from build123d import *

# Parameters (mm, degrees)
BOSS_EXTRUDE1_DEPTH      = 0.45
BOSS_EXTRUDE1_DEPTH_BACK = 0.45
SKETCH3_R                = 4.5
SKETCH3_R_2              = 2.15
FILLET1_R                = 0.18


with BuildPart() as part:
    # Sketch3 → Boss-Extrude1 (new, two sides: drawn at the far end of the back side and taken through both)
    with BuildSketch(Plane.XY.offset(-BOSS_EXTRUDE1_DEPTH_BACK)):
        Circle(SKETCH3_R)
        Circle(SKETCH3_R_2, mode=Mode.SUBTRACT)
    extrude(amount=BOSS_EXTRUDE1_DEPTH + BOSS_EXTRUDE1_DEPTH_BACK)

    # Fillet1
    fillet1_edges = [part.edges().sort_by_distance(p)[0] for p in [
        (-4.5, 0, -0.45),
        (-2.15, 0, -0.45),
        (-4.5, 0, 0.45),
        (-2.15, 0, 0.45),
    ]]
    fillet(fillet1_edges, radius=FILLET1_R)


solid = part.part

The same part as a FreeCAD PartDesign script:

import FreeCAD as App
import Part
import Sketcher
Q = App.Units.Quantity


def edges_at(feature, points):
    """Names of the edges that pass closest to the given points."""
    edges = feature.Shape.Edges
    near = lambda p: min(range(len(edges)), key=lambda i: edges[i].distToShape(Part.Vertex(*p))[0])
    return sorted({f"Edge{near(p) + 1}" for p in points})

doc = App.newDocument("Part")
params = doc.addObject("Spreadsheet::Sheet", "Params")
for row, (alias, value) in enumerate([
    ("sketch1_diameter", "9 mm"),
    ("sketch1_diameter2", "4.3 mm"),
    ("pad1_length", "0.45 mm"),
    ("pad1_length2", "0.45 mm"),
    ("fillet_radius", "0.18 mm"),
], start=1):
    params.set(f"A{row}", alias)
    params.set(f"B{row}", "=" + value)
    params.setAlias(f"B{row}", alias)

body = doc.addObject("PartDesign::Body", "Body")

# Sketch on XY plane
sketch1 = body.newObject("Sketcher::SketchObject", "Sketch")
sketch1.AttachmentSupport = (doc.getObject("XY_Plane"), [""])
sketch1.MapMode = "FlatFace"
sketch1.addGeometry([
    Part.Circle(App.Vector(0, 0, 0), App.Vector(0, 0, 1), 4.5),
    Part.Circle(App.Vector(0, 0, 0), App.Vector(0, 0, 1), 2.1),
], False)
sketch1.addConstraint([
    Sketcher.Constraint("Coincident", 0, 3, -1, 1),
    Sketcher.Constraint("Coincident", 1, 3, -1, 1),
    Sketcher.Constraint("Diameter", 0, Q("9 mm")),
    Sketcher.Constraint("Diameter", 1, Q("4.3 mm")),
])
sketch1.setExpression("Constraints[2]", "Params.sketch1_diameter")
sketch1.setExpression("Constraints[3]", "Params.sketch1_diameter2")
pad1 = body.newObject("PartDesign::Pad", "Pad")
pad1.Profile = sketch1
pad1.Type = "TwoLengths"
pad1.setExpression("Length", "Params.pad1_length")
pad1.setExpression("Length2", "Params.pad1_length2")
doc.recompute()

fillet = body.newObject("PartDesign::Fillet", "Fillet")
fillet.Base = (pad1, edges_at(pad1, [
    (-4.5, 0, -0.45),
    (-2.15, 0, -0.45),
    (-4.5, 0, 0.45),
    (-2.15, 0, 0.45),
]))
fillet.setExpression("Radius", "Params.fillet_radius")

doc.recompute()
